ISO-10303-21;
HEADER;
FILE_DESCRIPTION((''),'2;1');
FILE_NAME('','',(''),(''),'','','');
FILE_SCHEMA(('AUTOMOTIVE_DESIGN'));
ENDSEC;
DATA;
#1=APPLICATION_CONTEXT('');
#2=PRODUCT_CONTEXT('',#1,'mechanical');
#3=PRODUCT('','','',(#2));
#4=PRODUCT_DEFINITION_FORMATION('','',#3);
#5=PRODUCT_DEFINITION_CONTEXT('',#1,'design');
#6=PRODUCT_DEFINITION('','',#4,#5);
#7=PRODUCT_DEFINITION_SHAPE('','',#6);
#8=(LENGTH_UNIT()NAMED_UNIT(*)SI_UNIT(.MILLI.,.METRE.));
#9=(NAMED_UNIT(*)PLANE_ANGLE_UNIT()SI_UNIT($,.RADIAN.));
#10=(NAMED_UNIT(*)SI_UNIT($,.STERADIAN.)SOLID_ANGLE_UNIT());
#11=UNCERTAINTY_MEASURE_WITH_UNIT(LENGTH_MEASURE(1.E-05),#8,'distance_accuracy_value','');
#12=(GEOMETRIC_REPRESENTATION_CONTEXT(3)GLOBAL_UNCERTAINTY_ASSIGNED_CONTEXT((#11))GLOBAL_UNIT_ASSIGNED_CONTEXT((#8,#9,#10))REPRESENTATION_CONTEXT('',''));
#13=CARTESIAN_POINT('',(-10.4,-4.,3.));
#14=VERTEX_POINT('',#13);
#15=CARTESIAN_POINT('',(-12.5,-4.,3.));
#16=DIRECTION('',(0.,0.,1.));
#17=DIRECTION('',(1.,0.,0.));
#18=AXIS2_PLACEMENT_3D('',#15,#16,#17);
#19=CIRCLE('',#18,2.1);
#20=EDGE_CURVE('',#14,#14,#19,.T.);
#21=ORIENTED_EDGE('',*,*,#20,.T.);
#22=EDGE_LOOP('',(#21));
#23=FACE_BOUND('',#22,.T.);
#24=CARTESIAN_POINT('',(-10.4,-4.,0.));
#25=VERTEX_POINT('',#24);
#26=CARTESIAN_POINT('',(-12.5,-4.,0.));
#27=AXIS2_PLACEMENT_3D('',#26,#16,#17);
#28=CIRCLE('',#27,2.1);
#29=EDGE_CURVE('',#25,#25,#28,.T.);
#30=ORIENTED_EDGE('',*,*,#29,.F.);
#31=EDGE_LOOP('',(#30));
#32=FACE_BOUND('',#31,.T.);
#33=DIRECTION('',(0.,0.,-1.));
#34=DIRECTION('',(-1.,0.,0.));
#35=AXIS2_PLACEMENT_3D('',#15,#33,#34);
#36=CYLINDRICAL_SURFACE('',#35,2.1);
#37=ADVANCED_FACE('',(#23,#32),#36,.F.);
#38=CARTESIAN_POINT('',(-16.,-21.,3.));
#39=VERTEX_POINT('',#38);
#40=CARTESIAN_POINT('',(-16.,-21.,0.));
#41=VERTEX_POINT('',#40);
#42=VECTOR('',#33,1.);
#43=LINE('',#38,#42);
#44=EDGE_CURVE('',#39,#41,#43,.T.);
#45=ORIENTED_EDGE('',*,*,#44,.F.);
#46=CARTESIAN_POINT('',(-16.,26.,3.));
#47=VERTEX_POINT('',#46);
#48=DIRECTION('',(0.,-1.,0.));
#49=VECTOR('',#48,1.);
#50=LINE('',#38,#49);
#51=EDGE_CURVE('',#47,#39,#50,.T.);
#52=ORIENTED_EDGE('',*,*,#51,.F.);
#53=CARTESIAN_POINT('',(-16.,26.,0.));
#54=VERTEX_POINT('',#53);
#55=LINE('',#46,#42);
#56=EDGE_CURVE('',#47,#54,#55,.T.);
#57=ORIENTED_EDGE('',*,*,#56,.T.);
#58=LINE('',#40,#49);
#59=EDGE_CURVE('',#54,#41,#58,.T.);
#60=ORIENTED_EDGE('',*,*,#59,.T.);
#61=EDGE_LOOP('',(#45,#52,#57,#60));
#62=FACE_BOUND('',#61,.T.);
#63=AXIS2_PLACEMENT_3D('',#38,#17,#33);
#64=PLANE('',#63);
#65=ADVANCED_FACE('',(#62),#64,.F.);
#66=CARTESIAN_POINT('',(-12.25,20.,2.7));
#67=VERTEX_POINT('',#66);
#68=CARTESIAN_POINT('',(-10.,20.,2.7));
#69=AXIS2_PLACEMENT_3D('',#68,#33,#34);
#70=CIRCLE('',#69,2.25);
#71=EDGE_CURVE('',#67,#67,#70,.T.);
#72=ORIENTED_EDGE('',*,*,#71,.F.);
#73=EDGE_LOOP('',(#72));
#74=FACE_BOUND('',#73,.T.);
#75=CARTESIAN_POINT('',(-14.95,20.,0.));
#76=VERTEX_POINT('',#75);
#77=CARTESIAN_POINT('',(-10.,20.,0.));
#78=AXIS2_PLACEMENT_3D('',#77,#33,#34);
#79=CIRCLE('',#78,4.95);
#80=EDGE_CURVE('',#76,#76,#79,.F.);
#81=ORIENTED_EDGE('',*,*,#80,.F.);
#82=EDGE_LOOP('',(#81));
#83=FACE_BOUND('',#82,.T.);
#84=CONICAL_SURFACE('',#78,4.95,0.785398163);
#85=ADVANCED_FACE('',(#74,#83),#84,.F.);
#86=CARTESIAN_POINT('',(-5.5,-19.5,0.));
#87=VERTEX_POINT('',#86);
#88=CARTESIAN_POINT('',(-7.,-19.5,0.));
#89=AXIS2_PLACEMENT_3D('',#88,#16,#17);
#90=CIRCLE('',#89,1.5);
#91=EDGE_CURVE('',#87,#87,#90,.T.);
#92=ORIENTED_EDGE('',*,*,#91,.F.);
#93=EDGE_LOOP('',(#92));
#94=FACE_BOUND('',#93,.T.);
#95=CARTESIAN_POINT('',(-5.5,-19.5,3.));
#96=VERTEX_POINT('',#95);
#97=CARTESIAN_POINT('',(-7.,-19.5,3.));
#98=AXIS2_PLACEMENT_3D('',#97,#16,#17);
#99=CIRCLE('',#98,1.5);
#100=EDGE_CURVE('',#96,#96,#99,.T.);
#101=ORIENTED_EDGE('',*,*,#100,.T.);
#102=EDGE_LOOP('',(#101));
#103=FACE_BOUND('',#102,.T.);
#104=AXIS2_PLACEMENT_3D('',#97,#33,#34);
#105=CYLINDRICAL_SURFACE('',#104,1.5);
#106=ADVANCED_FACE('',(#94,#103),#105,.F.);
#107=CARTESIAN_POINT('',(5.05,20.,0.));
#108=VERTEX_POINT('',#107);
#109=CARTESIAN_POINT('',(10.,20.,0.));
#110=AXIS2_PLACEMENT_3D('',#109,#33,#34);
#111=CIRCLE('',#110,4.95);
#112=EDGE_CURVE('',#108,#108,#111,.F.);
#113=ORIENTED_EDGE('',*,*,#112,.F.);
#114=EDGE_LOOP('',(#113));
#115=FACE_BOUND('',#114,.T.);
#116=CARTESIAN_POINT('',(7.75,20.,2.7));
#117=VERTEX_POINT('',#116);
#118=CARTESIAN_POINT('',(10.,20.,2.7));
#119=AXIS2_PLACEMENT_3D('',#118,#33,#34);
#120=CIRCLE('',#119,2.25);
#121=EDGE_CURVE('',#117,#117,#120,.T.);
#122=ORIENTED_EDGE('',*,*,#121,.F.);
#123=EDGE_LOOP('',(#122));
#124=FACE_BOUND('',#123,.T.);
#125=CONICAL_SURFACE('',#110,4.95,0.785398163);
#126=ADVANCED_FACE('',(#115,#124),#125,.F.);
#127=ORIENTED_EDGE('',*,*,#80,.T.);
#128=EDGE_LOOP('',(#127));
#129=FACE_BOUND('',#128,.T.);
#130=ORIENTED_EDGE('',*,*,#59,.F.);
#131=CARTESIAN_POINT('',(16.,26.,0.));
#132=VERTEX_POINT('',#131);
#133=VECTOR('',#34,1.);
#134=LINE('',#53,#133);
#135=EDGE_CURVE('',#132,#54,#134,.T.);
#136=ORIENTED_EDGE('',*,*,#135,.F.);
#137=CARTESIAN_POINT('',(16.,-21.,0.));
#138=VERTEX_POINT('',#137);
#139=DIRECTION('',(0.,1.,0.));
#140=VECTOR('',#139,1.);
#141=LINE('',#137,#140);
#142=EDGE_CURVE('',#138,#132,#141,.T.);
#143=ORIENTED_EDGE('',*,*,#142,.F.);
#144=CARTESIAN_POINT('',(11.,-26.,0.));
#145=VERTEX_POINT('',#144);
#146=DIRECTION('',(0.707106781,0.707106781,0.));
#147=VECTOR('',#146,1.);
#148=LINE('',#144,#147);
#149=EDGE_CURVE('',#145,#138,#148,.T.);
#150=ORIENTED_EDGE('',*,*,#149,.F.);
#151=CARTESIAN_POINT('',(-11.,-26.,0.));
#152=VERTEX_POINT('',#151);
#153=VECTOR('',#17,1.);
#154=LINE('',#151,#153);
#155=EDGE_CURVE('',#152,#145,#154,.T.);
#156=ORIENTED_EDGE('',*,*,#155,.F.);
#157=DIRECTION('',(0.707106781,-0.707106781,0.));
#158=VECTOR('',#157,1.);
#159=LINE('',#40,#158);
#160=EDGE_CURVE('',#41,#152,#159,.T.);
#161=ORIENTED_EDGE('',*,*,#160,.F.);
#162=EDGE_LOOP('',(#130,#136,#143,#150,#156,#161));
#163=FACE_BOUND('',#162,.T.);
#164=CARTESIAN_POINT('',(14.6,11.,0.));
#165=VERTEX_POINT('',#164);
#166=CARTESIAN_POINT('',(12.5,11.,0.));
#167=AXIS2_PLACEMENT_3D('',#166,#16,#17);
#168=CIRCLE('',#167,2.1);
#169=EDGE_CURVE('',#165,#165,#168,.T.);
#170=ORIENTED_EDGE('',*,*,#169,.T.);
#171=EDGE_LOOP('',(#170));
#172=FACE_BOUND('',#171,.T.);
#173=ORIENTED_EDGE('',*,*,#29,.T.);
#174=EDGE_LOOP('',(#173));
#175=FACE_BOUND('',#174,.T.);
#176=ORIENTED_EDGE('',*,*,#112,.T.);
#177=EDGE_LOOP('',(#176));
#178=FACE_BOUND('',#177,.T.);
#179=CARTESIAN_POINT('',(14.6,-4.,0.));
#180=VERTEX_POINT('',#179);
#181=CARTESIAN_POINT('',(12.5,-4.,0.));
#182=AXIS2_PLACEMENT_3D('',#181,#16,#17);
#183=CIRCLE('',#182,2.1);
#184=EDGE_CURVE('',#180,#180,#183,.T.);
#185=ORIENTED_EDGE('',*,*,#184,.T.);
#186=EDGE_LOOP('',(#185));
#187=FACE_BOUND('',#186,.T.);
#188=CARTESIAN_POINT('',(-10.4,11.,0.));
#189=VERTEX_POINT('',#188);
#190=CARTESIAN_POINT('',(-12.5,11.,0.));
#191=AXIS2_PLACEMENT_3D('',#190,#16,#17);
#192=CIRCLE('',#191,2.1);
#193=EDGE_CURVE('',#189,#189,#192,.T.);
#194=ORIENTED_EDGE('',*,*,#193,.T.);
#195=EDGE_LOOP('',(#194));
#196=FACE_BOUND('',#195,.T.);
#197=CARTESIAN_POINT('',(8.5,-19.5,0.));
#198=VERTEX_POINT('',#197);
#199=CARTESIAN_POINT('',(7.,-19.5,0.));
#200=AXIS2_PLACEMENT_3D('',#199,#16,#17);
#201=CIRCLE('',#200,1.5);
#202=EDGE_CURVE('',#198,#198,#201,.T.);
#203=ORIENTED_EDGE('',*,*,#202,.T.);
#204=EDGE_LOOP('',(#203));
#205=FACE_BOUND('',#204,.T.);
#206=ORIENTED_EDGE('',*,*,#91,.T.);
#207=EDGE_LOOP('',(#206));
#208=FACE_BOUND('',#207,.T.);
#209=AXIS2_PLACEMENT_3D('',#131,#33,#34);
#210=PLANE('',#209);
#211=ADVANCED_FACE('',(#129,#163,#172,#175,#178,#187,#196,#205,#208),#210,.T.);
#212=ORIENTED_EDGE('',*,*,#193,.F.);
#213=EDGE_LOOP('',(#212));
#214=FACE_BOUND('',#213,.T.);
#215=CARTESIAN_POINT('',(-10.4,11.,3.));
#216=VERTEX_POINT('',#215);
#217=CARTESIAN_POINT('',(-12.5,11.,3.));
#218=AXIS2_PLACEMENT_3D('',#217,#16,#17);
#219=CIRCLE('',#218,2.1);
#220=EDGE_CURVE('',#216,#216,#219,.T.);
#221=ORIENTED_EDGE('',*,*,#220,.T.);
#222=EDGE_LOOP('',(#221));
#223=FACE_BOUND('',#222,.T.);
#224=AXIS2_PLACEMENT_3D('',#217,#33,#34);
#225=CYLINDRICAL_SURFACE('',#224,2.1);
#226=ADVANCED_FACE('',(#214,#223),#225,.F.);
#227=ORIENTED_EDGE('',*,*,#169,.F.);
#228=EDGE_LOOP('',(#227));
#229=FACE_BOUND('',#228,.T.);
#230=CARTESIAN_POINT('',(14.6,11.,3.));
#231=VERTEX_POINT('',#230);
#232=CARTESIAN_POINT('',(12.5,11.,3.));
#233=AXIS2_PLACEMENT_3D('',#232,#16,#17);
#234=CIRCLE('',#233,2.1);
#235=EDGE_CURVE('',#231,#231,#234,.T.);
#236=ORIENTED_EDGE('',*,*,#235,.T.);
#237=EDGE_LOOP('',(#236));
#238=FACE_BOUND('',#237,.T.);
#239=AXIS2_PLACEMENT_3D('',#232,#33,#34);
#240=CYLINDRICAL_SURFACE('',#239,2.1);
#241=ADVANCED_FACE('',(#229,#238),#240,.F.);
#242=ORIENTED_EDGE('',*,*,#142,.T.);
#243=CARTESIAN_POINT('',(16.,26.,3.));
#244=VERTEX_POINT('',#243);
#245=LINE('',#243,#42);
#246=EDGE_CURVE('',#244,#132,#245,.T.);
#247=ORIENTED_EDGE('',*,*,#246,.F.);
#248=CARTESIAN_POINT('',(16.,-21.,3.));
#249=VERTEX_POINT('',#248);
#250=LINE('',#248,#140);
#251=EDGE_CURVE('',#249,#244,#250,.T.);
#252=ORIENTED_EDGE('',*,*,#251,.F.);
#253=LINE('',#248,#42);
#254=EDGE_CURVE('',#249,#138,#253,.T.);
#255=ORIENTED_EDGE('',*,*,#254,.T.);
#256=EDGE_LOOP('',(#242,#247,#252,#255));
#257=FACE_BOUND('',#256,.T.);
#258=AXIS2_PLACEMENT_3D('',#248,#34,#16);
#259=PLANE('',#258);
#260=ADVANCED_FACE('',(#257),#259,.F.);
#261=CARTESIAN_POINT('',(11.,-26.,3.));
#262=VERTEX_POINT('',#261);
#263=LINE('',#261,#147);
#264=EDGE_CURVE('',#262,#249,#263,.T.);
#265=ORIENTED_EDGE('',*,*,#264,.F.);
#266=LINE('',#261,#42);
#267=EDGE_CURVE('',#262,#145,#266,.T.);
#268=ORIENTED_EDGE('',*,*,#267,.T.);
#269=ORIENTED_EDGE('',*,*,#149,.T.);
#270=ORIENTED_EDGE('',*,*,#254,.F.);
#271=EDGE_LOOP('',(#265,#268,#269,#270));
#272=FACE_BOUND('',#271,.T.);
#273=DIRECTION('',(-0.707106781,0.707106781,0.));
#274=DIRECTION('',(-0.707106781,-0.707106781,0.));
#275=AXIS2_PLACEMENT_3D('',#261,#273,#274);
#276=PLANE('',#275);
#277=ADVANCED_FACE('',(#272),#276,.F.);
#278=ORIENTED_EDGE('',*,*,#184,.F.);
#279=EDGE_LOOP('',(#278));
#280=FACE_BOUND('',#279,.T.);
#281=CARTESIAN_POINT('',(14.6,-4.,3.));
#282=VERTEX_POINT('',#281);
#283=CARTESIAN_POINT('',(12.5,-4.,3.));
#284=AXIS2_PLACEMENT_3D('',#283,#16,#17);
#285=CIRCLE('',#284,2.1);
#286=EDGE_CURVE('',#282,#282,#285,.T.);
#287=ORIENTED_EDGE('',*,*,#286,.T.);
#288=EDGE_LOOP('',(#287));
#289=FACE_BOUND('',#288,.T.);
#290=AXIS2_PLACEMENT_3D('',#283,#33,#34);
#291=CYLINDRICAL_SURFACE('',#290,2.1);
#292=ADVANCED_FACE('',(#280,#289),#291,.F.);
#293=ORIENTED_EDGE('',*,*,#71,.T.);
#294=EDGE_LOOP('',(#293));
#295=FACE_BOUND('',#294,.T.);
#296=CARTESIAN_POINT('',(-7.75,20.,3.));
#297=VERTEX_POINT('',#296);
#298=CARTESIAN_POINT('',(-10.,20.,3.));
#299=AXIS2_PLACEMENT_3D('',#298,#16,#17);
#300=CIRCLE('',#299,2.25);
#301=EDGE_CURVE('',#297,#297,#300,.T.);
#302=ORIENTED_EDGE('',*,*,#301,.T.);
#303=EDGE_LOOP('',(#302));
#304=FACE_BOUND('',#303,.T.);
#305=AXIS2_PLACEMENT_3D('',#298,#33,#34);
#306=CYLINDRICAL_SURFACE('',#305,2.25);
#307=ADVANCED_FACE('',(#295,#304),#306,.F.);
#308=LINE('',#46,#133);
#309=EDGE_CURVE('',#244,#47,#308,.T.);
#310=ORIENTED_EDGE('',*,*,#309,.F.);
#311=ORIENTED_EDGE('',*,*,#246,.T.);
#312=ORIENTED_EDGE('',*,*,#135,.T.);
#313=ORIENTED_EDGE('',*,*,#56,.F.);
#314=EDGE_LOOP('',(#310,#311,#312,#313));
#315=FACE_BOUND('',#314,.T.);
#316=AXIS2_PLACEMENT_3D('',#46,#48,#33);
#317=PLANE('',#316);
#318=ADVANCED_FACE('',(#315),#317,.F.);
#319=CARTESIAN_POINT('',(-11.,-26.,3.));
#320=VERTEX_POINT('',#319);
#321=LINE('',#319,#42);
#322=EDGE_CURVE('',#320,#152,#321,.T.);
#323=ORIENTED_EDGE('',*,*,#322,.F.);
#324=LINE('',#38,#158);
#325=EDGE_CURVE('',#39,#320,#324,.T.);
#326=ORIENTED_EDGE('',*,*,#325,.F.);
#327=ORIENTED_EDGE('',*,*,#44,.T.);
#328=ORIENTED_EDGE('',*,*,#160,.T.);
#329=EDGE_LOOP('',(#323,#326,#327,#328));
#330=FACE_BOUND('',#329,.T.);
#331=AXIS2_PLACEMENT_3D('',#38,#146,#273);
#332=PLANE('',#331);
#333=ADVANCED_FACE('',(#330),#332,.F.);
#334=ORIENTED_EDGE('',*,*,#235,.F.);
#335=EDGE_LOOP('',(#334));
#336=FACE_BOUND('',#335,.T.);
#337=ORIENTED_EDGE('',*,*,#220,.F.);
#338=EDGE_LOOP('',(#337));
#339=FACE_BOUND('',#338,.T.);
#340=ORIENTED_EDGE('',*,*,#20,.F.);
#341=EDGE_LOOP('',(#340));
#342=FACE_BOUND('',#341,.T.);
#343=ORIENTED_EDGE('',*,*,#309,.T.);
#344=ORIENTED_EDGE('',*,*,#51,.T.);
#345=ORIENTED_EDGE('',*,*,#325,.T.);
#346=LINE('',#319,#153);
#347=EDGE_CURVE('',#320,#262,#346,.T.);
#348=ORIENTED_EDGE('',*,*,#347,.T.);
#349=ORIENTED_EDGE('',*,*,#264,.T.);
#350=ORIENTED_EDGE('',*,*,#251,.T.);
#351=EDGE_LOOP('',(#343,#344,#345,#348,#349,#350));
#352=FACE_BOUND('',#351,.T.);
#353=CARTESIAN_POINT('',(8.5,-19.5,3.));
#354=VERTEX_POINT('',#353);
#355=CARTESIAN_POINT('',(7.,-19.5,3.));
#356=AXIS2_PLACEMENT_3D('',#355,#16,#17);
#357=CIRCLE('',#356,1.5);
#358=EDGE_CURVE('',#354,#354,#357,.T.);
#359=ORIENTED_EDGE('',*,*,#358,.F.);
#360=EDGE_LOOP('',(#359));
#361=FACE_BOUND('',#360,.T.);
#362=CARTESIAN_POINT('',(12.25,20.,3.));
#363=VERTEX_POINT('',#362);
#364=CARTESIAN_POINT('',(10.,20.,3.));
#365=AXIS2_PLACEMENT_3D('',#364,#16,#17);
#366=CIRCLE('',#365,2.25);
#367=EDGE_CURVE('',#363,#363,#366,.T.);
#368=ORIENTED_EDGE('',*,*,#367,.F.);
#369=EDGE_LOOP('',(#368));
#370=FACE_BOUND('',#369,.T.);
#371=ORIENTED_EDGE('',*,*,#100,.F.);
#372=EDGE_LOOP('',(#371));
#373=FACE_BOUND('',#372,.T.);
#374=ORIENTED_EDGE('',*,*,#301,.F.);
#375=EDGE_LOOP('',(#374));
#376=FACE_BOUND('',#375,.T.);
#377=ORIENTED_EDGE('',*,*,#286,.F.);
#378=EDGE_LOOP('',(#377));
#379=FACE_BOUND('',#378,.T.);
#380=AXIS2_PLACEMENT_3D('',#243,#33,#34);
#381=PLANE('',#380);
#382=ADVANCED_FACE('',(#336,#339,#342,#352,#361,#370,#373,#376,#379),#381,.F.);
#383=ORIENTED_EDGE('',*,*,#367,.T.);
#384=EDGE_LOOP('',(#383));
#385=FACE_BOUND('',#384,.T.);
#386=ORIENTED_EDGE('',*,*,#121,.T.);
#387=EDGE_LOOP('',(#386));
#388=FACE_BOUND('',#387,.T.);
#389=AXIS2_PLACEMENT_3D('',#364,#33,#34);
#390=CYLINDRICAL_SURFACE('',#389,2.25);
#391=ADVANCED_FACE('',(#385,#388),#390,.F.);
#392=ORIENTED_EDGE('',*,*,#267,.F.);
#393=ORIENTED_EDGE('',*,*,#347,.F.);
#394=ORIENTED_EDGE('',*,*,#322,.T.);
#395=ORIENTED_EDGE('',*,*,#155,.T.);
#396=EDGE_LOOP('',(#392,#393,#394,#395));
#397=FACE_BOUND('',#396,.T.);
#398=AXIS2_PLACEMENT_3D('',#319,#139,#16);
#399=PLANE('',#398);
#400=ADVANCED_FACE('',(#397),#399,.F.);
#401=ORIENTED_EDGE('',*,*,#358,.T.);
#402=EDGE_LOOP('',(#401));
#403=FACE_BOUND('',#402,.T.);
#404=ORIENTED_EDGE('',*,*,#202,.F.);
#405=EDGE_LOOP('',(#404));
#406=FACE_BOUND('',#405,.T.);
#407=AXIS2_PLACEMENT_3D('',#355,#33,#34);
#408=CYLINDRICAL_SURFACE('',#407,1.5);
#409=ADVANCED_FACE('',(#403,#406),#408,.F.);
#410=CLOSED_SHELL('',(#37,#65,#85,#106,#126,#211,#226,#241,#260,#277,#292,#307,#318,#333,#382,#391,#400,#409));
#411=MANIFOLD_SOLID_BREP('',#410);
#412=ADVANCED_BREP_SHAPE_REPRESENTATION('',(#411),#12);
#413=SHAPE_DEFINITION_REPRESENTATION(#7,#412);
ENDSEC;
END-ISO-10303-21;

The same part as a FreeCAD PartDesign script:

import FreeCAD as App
import Part
import Sketcher
from FreeCAD import Vector
Q = App.Units.Quantity


def edges_at(feature, points):
    """Names of the edges that pass closest to the given points."""
    edges = feature.Shape.Edges
    near = lambda p: min(range(len(edges)), key=lambda i: edges[i].distToShape(Part.Vertex(*p))[0])
    return sorted({f"Edge{near(p) + 1}" for p in points})

doc = App.newDocument("Part")
body = doc.addObject("PartDesign::Body", "Body")

# Sketch on XY plane
sketch1 = body.newObject("Sketcher::SketchObject", "Sketch")
sketch1.AttachmentSupport = (doc.getObject("XY_Plane"), [""])
sketch1.MapMode = "FlatFace"
sketch1.addGeometry([
    Part.LineSegment(Vector(-16, -21, 0), Vector(-11, -26, 0)),  # 0
    Part.LineSegment(Vector(-11, -26, 0), Vector(11, -26, 0)),  # 1
    Part.LineSegment(Vector(11, -26, 0), Vector(16, -21, 0)),  # 2
    Part.LineSegment(Vector(16, -21, 0), Vector(16, 26, 0)),  # 3
    Part.LineSegment(Vector(16, 26, 0), Vector(-16, 26, 0)),  # 4
    Part.LineSegment(Vector(-16, 26, 0), Vector(-16, -21, 0)),  # 5
    Part.Circle(Vector(-7, -19.5, 0), Vector(0, 0, 1), 1.5),  # 6
    Part.Circle(Vector(-12.5, -4, 0), Vector(0, 0, 1), 2.1),  # 7
    Part.Circle(Vector(7, -19.5, 0), Vector(0, 0, 1), 1.5),  # 8
    Part.Circle(Vector(12.5, -4, 0), Vector(0, 0, 1), 2.1),  # 9
    Part.Circle(Vector(-12.5, 11, 0), Vector(0, 0, 1), 2.1),  # 10
    Part.Circle(Vector(-10, 20, 0), Vector(0, 0, 1), 2.2),  # 11
    Part.Circle(Vector(12.5, 11, 0), Vector(0, 0, 1), 2.1),  # 12
    Part.Circle(Vector(10, 20, 0), Vector(0, 0, 1), 2.2),  # 13
], False)
sketch1.addConstraint([
    Sketcher.Constraint("Coincident", 0, 2, 1, 1),
    Sketcher.Constraint("Coincident", 1, 2, 2, 1),
    Sketcher.Constraint("Coincident", 2, 2, 3, 1),
    Sketcher.Constraint("Coincident", 3, 2, 4, 1),
    Sketcher.Constraint("Coincident", 4, 2, 5, 1),
    Sketcher.Constraint("Coincident", 5, 2, 0, 1),
    Sketcher.Constraint("Horizontal", 1),
    Sketcher.Constraint("Vertical", 3),
    Sketcher.Constraint("Horizontal", 4),
    Sketcher.Constraint("Vertical", 5),
    Sketcher.Constraint("Equal", 6, 8),
    Sketcher.Constraint("Equal", 7, 9),
    Sketcher.Constraint("Equal", 9, 10),
    Sketcher.Constraint("Equal", 10, 12),
    Sketcher.Constraint("Equal", 11, 13),
    Sketcher.Constraint("Symmetric", 6, 3, 8, 3, -2),
    Sketcher.Constraint("Symmetric", 7, 3, 9, 3, -2),
    Sketcher.Constraint("Symmetric", 10, 3, 12, 3, -2),
    Sketcher.Constraint("Symmetric", 11, 3, 13, 3, -2),
    Sketcher.Constraint("Symmetric", 2, 2, 5, 2, -2),
    Sketcher.Constraint("Perpendicular", 0, 2),
    Sketcher.Constraint("Vertical", 7, 3, 10, 3),
    Sketcher.Constraint("Equal", 0, 2),
    Sketcher.Constraint("Diameter", 6, Q("3 mm")),
    Sketcher.Constraint("Diameter", 7, Q("4.2 mm")),
    Sketcher.Constraint("Diameter", 11, Q("4.5 mm")),
    Sketcher.Constraint("DistanceX", 1, 1, 1, 2, Q("22 mm")),
    Sketcher.Constraint("DistanceX", 4, 2, 4, 1, Q("32 mm")),
    Sketcher.Constraint("DistanceY", 3, 1, 3, 2, Q("47 mm")),
    Sketcher.Constraint("DistanceX", 6, 3, -1, 1, Q("7 mm")),
    Sketcher.Constraint("DistanceY", 7, 3, -1, 1, Q("4 mm")),
    Sketcher.Constraint("DistanceY", -1, 1, 10, 3, Q("11 mm")),
    Sketcher.Constraint("DistanceX", 11, 3, -1, 1, Q("10 mm")),
    Sketcher.Constraint("DistanceY", -1, 1, 11, 3, Q("20 mm")),
    Sketcher.Constraint("DistanceY", 0, 2, -1, 1, Q("26 mm")),
    Sketcher.Constraint("DistanceX", 7, 3, 9, 3, Q("25 mm")),
    Sketcher.Constraint("DistanceY", 6, 3, -1, 1, Q("19.5 mm")),
])
pad1 = body.newObject("PartDesign::Pad", "Pad")
pad1.Profile = sketch1
pad1.Length = 3
doc.recompute()

chamfer = body.newObject("PartDesign::Chamfer", "Chamfer")
chamfer.Base = (pad1, edges_at(pad1, [(7.75, 20, 0)]))
chamfer.Size = 2.7
doc.recompute()

chamfer2 = body.newObject("PartDesign::Chamfer", "Chamfer001")
chamfer2.Base = (chamfer, edges_at(chamfer, [(-12.25, 20, 0)]))
chamfer2.Size = 2.7

doc.recompute()
